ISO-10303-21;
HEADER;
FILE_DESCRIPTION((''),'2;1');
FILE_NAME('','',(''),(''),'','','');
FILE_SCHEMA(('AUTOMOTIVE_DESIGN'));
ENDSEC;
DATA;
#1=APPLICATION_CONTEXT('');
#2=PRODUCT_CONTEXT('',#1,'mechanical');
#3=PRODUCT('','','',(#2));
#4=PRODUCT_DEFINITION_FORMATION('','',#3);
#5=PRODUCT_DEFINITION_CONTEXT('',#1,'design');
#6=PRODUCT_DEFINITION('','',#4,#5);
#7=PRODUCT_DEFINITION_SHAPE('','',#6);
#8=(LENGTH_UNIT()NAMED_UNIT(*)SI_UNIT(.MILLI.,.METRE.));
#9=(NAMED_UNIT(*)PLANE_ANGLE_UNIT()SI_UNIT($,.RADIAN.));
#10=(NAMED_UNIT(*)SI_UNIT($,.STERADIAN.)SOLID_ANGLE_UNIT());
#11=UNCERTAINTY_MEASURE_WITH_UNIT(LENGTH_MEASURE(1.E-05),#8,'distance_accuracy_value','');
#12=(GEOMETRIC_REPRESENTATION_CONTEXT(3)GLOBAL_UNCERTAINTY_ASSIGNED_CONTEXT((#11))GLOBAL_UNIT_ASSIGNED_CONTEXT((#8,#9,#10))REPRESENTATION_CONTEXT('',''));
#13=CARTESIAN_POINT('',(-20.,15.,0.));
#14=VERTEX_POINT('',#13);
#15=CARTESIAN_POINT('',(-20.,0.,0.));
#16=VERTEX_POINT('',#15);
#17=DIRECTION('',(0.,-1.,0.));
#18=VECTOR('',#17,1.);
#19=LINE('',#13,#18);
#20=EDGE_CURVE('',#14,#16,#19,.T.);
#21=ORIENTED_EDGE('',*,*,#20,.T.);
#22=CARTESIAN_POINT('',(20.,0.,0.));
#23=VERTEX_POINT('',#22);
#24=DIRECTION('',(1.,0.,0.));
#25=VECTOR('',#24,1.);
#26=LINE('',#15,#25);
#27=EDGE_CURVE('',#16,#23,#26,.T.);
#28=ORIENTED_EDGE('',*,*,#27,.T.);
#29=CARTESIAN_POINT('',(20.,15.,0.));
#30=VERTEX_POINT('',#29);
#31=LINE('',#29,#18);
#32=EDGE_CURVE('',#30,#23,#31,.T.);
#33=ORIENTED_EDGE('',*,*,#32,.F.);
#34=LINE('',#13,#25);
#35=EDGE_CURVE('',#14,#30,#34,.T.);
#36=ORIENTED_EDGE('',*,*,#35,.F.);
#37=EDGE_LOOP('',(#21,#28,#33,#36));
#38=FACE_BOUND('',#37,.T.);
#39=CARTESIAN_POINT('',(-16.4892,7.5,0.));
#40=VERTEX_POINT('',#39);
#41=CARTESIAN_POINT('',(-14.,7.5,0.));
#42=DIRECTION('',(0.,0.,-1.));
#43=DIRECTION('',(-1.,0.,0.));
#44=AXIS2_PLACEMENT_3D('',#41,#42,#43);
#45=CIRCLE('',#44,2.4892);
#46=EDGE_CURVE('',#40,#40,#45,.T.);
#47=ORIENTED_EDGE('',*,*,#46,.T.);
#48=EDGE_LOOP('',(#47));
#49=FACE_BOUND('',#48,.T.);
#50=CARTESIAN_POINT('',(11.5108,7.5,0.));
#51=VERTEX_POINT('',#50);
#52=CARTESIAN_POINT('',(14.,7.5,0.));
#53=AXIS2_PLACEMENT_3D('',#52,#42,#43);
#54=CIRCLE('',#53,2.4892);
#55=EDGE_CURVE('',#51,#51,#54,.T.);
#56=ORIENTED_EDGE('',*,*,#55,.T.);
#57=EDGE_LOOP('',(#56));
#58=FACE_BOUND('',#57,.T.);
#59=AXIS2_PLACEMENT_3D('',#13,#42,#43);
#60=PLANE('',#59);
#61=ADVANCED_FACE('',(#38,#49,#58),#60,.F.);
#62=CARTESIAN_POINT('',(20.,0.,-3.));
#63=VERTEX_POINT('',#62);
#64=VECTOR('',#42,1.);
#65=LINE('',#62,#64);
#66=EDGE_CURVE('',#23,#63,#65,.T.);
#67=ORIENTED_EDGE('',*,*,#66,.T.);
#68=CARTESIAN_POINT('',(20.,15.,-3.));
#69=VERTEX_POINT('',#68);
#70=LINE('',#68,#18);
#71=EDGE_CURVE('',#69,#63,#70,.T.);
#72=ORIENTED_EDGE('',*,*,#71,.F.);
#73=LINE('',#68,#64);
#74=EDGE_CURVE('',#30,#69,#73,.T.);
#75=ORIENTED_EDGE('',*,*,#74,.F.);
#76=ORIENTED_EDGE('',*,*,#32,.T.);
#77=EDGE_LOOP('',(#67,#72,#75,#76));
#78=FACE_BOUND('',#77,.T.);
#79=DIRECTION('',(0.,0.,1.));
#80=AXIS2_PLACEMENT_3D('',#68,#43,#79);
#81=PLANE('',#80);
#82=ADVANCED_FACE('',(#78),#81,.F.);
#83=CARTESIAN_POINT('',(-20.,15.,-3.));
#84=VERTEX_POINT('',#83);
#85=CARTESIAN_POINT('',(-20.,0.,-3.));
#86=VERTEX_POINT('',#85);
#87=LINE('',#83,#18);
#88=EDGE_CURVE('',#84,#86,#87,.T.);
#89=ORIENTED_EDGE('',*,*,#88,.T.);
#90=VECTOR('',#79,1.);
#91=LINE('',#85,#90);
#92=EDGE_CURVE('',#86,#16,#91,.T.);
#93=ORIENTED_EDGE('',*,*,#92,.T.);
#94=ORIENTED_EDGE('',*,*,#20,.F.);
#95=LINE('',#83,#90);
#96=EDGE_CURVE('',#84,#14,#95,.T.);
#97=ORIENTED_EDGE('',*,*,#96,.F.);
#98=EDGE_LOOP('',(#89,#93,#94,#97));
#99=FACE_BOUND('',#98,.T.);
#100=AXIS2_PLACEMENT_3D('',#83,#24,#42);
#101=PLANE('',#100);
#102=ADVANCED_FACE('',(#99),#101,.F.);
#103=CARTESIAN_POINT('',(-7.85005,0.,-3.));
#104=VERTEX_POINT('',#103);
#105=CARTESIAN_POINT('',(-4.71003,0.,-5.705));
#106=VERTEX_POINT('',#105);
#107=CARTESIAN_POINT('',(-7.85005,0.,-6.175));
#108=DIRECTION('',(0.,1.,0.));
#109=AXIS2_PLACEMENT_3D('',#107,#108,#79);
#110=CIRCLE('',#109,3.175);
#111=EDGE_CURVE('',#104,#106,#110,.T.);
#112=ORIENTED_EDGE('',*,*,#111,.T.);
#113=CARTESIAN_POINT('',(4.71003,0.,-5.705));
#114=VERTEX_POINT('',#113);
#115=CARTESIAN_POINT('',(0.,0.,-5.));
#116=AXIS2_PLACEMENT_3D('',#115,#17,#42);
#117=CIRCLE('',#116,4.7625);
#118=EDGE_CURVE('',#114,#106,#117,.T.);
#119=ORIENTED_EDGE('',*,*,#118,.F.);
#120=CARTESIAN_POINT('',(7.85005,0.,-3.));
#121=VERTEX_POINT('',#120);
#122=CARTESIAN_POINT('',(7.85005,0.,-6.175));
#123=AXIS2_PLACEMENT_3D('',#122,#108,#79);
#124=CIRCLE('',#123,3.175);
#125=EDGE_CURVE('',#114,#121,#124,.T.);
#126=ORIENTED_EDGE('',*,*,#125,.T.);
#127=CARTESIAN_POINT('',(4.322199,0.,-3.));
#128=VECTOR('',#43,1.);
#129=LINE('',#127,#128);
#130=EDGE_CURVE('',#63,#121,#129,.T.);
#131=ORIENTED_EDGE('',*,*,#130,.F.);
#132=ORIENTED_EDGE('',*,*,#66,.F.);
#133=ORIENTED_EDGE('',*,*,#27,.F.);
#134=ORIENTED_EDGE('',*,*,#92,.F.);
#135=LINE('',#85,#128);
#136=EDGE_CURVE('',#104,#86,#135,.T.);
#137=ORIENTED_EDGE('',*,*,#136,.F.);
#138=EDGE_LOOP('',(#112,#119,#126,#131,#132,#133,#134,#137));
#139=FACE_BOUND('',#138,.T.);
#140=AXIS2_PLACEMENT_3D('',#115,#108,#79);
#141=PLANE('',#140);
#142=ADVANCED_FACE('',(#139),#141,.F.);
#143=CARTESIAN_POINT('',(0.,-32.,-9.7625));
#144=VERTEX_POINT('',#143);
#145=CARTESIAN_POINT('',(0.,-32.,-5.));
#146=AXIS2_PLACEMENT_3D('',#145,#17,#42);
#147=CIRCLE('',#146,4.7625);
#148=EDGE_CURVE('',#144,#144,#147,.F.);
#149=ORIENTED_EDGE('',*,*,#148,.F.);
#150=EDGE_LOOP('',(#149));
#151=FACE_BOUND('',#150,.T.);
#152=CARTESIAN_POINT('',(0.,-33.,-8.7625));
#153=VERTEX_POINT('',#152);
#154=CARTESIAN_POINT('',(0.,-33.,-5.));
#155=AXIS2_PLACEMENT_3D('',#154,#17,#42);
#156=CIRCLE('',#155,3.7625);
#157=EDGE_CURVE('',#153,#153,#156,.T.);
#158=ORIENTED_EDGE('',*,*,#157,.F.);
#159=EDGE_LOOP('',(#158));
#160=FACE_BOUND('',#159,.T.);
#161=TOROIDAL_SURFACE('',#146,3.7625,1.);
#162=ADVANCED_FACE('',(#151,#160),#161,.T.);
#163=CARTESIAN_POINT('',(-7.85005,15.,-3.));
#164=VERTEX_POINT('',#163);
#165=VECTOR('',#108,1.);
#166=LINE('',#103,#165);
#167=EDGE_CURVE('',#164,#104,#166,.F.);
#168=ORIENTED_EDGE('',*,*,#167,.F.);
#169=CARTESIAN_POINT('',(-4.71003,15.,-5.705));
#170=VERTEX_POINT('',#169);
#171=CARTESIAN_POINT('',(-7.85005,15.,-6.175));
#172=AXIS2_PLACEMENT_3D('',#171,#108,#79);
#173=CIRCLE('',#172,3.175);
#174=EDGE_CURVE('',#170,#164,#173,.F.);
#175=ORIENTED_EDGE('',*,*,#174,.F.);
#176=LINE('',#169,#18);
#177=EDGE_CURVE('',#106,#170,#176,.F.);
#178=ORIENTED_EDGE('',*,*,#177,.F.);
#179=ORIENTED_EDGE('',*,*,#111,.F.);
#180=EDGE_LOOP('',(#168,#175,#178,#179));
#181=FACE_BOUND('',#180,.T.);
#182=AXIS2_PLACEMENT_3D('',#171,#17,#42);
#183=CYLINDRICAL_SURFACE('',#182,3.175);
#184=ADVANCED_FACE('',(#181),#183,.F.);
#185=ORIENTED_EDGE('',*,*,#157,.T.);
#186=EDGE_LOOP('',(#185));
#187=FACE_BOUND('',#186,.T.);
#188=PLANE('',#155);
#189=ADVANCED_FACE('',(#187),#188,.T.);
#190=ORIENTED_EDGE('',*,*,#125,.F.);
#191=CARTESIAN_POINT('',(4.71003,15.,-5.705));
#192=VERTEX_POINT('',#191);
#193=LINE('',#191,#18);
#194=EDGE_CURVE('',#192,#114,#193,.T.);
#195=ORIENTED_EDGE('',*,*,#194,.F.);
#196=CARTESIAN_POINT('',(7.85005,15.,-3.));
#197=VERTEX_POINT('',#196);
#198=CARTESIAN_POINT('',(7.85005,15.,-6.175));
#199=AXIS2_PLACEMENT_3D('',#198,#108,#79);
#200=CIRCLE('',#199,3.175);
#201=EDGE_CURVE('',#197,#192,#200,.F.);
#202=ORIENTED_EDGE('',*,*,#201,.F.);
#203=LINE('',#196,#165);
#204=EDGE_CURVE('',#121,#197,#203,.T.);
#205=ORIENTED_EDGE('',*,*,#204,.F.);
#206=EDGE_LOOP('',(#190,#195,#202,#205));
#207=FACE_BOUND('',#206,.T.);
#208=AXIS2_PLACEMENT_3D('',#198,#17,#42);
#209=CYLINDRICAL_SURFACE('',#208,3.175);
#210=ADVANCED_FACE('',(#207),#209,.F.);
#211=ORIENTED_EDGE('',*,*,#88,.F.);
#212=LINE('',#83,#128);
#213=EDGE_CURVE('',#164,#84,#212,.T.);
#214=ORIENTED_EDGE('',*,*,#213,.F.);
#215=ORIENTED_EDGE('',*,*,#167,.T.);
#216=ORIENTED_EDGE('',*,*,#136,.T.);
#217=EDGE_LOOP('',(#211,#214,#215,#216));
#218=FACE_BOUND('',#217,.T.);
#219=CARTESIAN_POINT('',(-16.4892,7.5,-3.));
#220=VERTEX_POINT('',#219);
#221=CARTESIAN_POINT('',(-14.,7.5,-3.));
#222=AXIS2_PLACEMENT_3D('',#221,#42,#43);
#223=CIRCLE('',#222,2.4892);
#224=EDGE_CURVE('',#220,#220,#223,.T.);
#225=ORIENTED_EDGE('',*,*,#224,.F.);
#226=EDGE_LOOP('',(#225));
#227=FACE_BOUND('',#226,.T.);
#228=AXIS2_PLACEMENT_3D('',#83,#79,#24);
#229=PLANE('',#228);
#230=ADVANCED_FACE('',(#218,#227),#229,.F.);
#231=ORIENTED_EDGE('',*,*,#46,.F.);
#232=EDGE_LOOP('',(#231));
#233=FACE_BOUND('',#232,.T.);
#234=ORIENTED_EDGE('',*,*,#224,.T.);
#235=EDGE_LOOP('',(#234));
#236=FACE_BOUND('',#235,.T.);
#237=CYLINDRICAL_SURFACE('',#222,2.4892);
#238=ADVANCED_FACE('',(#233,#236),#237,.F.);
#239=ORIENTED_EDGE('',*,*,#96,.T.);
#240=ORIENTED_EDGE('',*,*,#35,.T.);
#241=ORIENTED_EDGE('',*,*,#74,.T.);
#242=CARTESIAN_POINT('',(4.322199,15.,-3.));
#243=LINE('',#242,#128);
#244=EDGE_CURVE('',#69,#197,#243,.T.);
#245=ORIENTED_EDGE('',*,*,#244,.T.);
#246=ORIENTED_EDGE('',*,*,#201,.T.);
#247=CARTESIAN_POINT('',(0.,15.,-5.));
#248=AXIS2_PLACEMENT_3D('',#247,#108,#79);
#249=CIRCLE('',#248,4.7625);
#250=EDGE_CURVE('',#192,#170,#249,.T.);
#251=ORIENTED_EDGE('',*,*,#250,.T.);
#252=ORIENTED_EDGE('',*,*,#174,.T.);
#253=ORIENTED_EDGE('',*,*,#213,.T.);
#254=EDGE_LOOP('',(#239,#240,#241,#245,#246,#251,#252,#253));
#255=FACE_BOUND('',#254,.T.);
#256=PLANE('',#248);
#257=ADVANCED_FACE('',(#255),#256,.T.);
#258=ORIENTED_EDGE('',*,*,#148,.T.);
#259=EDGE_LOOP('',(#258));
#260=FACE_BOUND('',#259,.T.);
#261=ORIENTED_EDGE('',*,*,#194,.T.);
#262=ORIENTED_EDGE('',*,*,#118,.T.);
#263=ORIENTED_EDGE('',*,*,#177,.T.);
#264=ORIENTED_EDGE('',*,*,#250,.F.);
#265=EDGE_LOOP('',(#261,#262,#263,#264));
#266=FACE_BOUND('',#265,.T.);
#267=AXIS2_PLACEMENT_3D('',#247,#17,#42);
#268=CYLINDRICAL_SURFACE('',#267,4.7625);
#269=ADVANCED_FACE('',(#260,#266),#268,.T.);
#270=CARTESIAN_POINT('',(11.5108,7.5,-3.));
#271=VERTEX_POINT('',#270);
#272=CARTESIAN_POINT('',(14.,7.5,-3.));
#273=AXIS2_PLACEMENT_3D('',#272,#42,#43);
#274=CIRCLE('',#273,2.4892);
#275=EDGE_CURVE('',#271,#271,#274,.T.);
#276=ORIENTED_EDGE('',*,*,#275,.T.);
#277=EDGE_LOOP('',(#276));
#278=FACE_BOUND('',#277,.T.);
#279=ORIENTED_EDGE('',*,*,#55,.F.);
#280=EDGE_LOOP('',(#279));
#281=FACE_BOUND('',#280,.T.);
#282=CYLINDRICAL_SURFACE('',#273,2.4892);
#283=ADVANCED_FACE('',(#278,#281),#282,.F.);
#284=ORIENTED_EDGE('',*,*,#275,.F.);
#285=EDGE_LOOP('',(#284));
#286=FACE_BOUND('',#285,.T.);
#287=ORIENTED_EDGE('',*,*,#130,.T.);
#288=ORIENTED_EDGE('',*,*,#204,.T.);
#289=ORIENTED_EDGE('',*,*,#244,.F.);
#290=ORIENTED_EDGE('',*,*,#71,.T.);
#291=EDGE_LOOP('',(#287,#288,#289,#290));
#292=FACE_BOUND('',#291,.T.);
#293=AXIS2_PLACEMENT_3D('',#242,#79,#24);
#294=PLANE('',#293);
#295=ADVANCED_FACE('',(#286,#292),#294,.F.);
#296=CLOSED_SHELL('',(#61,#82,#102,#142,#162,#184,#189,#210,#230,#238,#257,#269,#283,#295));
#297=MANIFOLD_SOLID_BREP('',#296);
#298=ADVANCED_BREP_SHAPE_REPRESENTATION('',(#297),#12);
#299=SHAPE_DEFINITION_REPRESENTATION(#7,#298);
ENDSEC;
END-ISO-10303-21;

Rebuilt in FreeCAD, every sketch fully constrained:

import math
import FreeCAD as App
import Part
import Sketcher
from FreeCAD import Vector


def edges_at(feature, points):
    """Names of the edges that pass closest to the given points."""
    edges = feature.Shape.Edges
    near = lambda p: min(range(len(edges)), key=lambda i: edges[i].distToShape(Part.Vertex(*p))[0])
    return sorted({f"Edge{near(p) + 1}" for p in points})

doc = App.newDocument("Part")
body = doc.addObject("PartDesign::Body", "Body")

sketch1 = body.newObject("Sketcher::SketchObject", "Sketch")
sketch1.AttachmentSupport = (doc.getObject("XZ_Plane"), [""])
sketch1.MapMode = "FlatFace"
sketch1.addGeometry([
    Part.LineSegment(Vector(-4.3, -3, 0), Vector(-20, -3, 0)),
    Part.LineSegment(Vector(-20, -3, 0), Vector(-20, 0, 0)),
    Part.LineSegment(Vector(-20, 0, 0), Vector(20, 0, 0)),
    Part.LineSegment(Vector(20, 0, 0), Vector(20, -3, 0)),
    Part.LineSegment(Vector(20, -3, 0), Vector(4.3, -3, 0)),
    Part.ArcOfCircle(Part.Circle(Vector(0, -5, 0), Vector(0, 0, 1), 4.8), math.radians(155), math.radians(385)),
], False)
sketch1.addConstraint([
    Sketcher.Constraint("Coincident", 0, 2, 1, 1),
    Sketcher.Constraint("Coincident", 1, 2, 2, 1),
    Sketcher.Constraint("Coincident", 2, 2, 3, 1),
    Sketcher.Constraint("Coincident", 3, 2, 4, 1),
    Sketcher.Constraint("Coincident", 4, 2, 5, 2),
    Sketcher.Constraint("Coincident", 5, 1, 0, 1),
    Sketcher.Constraint("Horizontal", 0),
    Sketcher.Constraint("Vertical", 1),
    Sketcher.Constraint("Horizontal", 2),
    Sketcher.Constraint("Vertical", 3),
    Sketcher.Constraint("Horizontal", 4),
    Sketcher.Constraint("Symmetric", 1, 2, 2, 2, -1, 1),
    Sketcher.Constraint("Symmetric", 4, 2, 5, 1, -2),
    Sketcher.Constraint("DistanceX", 2, 1, 2, 2, 40.0),
    Sketcher.Constraint("DistanceY", 1, 1, 1, 2, 3.0),
    Sketcher.Constraint("DistanceY", 5, 3, -1, 1, 5.0),
    Sketcher.Constraint("Radius", 5, 4.7625),
])
pad1 = body.newObject("PartDesign::Pad", "Pad")
pad1.Profile = sketch1
pad1.Length = 15
pad1.Reversed = True
doc.recompute()

fillet = body.newObject("PartDesign::Fillet", "Fillet")
fillet.Base = (pad1, edges_at(pad1, [(-4.322, 7.5, -3), (4.322, 7.5, -3)]))
fillet.Radius = 3.175

sketch2 = body.newObject("Sketcher::SketchObject", "Sketch001")
sketch2.AttachmentSupport = (doc.getObject("XZ_Plane"), [""])
sketch2.MapMode = "FlatFace"
sketch2.addGeometry(Part.Circle(Vector(0, -5, 0), Vector(0, 0, 1), 4.8), False)
sketch2.addConstraint([
    Sketcher.Constraint("PointOnObject", 0, 3, -2),
    Sketcher.Constraint("Diameter", 0, 9.525),
    Sketcher.Constraint("DistanceY", 0, 3, -1, 1, 5.0),
])
pad2 = body.newObject("PartDesign::Pad", "Pad001")
pad2.Profile = sketch2
pad2.Length = 33
doc.recompute()

fillet2 = body.newObject("PartDesign::Fillet", "Fillet001")
fillet2.Base = (pad2, edges_at(pad2, [(0, -33, -0.237)]))
fillet2.Radius = 1

sketch3 = body.newObject("Sketcher::SketchObject", "Sketch002")
sketch3.AttachmentSupport = (doc.getObject("XY_Plane"), [""])
sketch3.MapMode = "FlatFace"
sketch3.AttachmentOffset = App.Placement(Vector(0, 0, -3), App.Rotation())
sketch3.addGeometry([
    Part.Circle(Vector(-14, 7.5, 0), Vector(0, 0, 1), 2.5),
    Part.Circle(Vector(14, 7.5, 0), Vector(0, 0, 1), 2.5),
], False)
sketch3.addConstraint([
    Sketcher.Constraint("Equal", 0, 1),
    Sketcher.Constraint("Symmetric", 0, 3, 1, 3, -2),
    Sketcher.Constraint("DistanceX", 0, 3, -1, 1, 14.0),
    Sketcher.Constraint("Diameter", 0, 4.9784),
    Sketcher.Constraint("DistanceY", -1, 1, 0, 3, 7.5),
])
doc.recompute()
hole = body.newObject("PartDesign::Hole", "Hole")
hole.Profile = sketch3
hole.ThreadType = "None"
hole.Diameter = 4.9784
hole.DepthType = "ThroughAll"
hole.Reversed = True

doc.recompute()
